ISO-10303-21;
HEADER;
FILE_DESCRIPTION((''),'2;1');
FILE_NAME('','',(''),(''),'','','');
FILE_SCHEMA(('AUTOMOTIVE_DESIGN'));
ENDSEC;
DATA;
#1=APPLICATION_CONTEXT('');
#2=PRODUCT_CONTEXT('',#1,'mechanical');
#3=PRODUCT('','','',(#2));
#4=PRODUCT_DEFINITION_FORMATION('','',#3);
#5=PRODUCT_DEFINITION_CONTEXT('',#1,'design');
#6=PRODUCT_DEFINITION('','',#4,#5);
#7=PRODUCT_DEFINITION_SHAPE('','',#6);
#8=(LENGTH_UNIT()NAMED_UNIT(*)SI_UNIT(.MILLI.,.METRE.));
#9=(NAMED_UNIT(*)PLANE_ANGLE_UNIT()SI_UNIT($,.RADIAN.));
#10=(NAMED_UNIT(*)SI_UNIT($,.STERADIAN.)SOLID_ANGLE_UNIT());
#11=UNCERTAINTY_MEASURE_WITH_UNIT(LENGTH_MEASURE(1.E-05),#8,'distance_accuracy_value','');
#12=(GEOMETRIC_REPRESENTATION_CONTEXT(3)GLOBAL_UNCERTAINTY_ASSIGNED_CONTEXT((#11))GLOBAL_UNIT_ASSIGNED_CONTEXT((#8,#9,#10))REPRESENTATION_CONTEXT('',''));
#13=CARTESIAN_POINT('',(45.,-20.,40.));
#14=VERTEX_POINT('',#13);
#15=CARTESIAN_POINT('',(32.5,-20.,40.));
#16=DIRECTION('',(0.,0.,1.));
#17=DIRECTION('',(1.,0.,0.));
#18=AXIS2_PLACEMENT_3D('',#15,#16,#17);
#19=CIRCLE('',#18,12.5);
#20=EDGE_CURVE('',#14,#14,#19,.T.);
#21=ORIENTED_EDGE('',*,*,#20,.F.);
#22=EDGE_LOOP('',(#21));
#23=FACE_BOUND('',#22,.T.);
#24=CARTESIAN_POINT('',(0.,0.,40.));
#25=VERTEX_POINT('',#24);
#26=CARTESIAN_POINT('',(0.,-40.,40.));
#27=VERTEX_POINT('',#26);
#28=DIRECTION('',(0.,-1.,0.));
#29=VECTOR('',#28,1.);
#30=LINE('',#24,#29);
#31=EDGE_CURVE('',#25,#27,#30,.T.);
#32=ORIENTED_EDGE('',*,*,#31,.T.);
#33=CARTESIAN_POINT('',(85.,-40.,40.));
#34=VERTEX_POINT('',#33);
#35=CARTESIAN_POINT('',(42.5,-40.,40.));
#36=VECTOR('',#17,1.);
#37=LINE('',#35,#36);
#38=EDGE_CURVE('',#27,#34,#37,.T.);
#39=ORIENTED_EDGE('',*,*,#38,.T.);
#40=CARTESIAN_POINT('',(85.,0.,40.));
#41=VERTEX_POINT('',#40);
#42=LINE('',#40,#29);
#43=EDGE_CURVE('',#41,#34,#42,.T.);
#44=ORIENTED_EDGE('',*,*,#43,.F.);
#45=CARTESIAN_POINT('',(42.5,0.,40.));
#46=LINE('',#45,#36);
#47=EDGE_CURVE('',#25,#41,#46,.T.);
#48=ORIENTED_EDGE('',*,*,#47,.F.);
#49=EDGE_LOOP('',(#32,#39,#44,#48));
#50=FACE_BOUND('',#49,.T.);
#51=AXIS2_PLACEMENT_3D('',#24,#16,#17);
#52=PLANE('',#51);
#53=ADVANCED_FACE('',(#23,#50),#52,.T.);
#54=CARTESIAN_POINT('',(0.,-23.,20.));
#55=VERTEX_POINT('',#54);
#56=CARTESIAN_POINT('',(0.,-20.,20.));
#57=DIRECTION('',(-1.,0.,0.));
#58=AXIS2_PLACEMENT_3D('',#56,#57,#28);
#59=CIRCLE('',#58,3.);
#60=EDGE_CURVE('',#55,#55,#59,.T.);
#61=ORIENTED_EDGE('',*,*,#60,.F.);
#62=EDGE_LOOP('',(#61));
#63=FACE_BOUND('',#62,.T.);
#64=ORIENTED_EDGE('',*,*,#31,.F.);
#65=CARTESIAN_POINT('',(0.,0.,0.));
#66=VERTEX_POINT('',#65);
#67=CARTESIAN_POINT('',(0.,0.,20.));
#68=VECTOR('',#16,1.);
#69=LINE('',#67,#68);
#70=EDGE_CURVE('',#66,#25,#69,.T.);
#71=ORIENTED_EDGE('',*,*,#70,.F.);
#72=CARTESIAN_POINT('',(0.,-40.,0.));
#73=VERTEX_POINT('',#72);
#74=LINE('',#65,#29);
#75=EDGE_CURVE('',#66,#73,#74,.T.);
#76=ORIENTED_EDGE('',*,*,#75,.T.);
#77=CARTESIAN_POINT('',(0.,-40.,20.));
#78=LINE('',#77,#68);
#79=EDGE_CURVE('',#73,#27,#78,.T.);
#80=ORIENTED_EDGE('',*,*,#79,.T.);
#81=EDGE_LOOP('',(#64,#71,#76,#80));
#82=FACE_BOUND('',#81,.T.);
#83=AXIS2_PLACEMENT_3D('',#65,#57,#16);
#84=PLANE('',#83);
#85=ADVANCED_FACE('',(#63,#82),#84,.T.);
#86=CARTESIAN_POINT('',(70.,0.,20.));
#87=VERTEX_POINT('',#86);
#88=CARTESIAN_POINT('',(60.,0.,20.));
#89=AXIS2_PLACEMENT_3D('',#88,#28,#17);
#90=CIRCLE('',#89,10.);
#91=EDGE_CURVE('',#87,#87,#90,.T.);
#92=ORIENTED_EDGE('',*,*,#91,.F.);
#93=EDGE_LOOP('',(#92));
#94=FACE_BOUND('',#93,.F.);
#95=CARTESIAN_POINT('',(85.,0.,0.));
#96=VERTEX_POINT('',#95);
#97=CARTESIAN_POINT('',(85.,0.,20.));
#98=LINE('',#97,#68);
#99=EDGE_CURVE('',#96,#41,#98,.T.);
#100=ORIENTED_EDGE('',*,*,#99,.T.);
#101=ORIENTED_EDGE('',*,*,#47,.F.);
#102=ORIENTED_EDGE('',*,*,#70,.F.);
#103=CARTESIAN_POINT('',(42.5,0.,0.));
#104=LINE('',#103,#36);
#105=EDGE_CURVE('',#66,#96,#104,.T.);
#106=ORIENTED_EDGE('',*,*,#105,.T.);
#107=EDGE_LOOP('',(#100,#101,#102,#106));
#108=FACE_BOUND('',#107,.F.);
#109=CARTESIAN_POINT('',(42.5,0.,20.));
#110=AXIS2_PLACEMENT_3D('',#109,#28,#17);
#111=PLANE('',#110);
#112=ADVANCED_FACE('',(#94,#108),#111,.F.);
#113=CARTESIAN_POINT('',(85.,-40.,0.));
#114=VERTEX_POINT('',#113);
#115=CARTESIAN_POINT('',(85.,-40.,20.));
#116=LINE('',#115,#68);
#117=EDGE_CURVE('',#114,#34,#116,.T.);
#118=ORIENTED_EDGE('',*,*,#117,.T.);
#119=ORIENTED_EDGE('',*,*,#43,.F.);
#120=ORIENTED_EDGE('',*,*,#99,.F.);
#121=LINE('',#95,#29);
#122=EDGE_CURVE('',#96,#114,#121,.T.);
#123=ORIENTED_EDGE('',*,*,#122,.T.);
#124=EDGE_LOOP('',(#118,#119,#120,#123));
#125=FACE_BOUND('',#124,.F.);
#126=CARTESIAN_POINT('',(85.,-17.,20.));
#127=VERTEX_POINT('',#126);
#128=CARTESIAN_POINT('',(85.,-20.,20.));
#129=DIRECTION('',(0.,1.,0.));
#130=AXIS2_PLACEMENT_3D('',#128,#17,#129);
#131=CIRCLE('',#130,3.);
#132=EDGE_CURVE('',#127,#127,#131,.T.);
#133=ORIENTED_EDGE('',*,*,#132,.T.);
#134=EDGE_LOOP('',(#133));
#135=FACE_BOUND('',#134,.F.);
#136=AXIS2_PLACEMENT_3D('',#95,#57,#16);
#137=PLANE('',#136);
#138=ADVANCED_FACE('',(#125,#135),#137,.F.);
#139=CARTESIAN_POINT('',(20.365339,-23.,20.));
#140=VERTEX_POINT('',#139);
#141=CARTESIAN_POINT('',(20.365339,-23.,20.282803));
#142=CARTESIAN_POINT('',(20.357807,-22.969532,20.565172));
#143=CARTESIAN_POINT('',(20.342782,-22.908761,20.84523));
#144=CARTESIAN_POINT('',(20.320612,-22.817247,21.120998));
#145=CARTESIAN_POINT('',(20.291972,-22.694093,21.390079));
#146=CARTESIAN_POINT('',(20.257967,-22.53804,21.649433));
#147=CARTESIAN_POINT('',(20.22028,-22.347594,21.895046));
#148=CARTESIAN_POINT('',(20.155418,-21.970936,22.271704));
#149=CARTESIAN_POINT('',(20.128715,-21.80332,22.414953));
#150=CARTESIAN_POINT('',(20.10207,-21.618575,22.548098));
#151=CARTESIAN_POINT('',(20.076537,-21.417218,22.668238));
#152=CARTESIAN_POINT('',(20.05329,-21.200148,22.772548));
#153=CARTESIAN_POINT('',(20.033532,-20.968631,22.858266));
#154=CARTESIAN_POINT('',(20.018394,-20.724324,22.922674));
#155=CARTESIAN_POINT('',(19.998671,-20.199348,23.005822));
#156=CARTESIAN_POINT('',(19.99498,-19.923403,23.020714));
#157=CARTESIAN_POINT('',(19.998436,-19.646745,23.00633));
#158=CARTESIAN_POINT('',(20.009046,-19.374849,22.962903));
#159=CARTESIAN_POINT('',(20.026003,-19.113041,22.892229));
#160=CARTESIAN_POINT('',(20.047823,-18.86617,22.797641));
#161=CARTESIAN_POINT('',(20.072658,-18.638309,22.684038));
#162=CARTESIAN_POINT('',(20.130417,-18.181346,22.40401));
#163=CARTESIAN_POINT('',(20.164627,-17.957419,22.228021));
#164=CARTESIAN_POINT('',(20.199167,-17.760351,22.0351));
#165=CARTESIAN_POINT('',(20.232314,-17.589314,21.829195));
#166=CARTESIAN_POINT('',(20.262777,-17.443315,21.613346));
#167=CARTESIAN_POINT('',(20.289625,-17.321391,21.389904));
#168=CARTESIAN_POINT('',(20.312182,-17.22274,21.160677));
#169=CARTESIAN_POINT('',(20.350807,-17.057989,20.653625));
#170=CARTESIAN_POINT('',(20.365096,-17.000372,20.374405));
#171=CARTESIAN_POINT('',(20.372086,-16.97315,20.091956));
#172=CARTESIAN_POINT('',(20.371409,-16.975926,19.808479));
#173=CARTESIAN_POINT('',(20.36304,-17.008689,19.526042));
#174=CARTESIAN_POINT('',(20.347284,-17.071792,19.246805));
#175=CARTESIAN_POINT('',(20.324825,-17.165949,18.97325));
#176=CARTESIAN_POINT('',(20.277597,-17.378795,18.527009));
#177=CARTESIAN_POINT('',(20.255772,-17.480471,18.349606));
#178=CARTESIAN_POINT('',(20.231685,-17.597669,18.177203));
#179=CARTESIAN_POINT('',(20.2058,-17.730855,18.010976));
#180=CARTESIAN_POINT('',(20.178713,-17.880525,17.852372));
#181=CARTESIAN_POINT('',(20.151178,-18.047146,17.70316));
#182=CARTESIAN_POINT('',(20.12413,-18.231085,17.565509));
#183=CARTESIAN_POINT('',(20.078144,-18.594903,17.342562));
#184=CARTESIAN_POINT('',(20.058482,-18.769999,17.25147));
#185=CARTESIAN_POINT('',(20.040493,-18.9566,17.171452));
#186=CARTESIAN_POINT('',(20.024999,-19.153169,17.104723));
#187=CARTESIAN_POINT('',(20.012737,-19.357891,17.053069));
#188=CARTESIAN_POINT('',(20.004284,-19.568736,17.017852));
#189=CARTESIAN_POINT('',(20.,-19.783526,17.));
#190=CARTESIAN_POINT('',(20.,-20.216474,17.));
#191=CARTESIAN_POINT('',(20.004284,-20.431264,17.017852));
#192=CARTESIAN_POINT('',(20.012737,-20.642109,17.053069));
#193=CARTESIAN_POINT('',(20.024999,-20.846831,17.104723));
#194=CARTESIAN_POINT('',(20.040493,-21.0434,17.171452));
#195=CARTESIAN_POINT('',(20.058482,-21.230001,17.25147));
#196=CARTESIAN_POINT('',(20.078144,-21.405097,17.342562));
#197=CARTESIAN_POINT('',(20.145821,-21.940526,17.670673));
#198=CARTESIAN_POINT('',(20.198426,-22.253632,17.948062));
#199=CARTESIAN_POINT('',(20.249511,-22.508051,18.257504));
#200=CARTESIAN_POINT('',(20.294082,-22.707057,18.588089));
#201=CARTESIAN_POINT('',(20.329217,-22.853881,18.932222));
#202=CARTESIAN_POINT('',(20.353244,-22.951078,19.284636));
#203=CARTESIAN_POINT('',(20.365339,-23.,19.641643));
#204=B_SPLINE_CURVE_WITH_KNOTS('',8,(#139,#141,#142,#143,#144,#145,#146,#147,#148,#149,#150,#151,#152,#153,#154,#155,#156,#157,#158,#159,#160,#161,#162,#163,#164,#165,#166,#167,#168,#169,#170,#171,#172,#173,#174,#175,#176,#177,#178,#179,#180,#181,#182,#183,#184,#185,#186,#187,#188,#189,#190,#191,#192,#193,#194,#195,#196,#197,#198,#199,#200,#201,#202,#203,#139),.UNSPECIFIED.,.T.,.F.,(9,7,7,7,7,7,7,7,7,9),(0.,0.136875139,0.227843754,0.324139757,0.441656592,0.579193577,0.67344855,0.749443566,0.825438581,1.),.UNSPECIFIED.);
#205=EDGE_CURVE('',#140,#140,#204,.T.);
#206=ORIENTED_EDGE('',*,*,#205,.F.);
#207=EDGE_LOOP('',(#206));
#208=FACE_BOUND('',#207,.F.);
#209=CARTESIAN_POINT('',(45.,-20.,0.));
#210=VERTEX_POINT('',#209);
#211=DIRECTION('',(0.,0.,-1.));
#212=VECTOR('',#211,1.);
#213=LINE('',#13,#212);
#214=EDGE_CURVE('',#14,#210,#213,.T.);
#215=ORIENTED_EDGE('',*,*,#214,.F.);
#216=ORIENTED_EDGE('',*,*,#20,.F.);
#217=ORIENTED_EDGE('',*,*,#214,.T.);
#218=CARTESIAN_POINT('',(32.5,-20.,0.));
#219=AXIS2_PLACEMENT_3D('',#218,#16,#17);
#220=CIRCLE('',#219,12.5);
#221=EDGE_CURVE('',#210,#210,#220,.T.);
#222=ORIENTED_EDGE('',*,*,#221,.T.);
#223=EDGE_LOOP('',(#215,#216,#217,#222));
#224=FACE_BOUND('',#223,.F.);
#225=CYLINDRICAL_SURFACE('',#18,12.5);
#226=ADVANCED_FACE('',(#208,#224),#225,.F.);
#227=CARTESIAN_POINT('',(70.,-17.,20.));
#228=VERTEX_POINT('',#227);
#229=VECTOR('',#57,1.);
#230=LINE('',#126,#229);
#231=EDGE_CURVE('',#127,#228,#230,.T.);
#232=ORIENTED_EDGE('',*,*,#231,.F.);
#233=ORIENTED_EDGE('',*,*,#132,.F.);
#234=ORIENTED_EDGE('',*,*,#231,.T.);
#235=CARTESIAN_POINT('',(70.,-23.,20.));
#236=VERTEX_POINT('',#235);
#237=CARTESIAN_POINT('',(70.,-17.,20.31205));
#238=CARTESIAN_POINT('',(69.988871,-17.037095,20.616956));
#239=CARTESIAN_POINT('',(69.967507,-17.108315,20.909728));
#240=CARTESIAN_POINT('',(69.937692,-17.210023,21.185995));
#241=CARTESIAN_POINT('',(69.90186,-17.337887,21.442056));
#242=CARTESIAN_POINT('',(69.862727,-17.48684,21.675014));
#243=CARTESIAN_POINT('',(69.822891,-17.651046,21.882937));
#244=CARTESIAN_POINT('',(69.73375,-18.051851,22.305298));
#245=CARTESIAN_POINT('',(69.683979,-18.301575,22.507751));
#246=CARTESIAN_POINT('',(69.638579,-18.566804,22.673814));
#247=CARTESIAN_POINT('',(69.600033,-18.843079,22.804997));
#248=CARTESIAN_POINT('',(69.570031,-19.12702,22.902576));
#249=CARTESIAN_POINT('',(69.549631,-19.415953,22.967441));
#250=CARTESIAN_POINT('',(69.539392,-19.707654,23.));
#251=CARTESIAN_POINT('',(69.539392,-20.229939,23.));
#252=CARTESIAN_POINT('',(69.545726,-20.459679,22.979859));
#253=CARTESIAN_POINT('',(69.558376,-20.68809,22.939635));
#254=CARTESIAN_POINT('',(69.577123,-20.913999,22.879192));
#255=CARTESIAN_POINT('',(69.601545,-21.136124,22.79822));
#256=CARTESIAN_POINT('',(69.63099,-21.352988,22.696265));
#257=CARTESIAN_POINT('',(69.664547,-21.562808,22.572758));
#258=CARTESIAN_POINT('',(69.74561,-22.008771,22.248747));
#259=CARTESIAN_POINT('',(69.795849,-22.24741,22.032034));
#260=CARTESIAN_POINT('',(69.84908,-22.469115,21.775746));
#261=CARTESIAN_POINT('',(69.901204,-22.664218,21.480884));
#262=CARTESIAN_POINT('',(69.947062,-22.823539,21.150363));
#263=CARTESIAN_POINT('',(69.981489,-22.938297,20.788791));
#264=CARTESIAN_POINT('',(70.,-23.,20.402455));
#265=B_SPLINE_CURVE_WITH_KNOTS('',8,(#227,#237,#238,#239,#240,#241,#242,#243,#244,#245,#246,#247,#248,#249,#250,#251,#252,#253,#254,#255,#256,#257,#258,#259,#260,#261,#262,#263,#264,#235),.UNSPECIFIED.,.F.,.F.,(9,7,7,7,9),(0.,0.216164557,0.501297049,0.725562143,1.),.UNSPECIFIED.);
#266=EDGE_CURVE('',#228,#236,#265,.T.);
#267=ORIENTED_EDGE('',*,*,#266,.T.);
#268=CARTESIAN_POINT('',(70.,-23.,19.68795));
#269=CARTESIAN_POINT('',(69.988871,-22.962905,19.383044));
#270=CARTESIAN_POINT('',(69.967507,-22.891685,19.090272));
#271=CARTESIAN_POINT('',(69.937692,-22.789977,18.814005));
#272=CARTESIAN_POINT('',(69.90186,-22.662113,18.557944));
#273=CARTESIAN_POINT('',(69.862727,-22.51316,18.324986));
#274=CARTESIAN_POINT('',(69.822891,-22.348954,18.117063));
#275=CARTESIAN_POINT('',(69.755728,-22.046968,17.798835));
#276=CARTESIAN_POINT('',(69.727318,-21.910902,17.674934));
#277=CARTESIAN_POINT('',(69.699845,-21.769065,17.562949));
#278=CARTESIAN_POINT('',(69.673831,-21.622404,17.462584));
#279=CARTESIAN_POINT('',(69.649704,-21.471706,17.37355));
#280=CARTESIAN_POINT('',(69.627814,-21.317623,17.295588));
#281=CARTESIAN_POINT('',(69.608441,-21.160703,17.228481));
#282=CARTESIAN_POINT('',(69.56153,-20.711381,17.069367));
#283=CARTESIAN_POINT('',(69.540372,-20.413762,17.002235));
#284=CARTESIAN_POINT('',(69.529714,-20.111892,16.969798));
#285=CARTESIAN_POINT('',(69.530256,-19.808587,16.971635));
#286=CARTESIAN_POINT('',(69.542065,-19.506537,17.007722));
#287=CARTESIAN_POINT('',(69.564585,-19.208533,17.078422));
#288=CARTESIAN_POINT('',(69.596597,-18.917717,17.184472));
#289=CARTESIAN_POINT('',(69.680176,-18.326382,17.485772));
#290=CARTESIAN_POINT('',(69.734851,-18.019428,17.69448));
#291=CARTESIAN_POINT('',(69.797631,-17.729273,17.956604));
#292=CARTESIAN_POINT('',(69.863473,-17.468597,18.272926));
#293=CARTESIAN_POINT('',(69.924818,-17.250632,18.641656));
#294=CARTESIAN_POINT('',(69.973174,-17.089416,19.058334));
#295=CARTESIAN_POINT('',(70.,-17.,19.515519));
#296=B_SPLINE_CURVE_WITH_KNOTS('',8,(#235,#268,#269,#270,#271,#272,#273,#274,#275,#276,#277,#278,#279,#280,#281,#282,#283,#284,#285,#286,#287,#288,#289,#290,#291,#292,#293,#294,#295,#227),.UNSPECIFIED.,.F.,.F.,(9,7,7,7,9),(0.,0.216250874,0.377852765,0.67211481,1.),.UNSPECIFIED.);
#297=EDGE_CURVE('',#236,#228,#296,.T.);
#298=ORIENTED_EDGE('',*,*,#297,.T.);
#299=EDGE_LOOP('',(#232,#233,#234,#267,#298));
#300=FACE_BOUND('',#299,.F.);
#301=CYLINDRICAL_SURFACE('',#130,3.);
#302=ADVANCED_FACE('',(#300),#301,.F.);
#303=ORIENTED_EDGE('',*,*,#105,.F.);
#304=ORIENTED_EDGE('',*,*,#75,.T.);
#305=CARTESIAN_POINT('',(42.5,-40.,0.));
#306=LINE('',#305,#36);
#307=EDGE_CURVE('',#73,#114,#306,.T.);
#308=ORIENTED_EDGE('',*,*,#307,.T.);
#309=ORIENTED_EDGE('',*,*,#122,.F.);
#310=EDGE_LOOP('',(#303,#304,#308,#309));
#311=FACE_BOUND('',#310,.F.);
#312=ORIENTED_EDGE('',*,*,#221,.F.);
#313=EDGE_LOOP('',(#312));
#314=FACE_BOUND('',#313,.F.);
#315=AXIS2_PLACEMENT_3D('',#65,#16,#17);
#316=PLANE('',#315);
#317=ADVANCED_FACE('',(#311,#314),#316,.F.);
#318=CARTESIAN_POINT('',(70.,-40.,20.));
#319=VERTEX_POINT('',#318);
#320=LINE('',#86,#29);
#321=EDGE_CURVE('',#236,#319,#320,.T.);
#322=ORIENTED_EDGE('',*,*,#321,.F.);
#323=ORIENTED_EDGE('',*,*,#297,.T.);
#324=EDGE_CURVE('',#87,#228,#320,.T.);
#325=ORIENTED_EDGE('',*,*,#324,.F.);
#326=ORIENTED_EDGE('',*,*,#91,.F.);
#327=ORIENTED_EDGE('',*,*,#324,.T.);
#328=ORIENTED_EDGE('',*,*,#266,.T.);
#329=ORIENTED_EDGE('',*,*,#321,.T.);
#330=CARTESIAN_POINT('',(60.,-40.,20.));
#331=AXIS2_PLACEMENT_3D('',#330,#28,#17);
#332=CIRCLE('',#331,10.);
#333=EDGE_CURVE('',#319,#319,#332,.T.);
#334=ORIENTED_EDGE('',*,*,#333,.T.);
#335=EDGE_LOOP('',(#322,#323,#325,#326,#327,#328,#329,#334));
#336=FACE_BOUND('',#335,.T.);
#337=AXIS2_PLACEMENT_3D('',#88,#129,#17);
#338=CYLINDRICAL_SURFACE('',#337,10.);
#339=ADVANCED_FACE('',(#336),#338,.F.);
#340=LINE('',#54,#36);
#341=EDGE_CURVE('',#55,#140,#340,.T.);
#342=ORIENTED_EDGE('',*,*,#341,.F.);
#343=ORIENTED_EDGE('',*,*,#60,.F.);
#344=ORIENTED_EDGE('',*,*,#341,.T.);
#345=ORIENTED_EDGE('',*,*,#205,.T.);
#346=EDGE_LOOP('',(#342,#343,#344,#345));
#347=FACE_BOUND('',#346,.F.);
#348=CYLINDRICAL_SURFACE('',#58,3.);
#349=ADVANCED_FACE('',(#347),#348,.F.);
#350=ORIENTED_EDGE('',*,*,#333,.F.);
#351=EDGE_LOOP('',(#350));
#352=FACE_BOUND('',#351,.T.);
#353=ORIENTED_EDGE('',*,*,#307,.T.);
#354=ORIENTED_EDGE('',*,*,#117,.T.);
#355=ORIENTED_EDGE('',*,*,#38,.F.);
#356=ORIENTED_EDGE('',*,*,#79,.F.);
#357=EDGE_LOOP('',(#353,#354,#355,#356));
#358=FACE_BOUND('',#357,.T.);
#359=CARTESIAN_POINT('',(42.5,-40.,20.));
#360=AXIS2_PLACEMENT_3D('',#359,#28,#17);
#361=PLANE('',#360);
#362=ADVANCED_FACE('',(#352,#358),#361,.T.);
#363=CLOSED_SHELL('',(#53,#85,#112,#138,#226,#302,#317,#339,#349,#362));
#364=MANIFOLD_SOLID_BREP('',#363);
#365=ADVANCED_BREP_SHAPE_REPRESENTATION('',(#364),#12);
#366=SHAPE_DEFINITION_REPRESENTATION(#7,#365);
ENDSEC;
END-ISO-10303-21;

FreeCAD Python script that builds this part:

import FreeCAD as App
import Part
import Sketcher
from FreeCAD import Vector


def add_polygon(sketch, points):
    """Adds a closed chain of lines whose ends are joined by coincident constraints."""
    first, n = sketch.GeometryCount, len(points)
    for a, b in zip(points, points[1:] + points[:1]):
        sketch.addGeometry(Part.LineSegment(App.Vector(*a, 0), App.Vector(*b, 0)), False)
    for i in range(n):
        sketch.addConstraint(Sketcher.Constraint("Coincident", first + i, 2, first + (i + 1) % n, 1))

doc = App.newDocument("Part")
body = doc.addObject("PartDesign::Body", "Body")

sketch1 = doc.addObject("Sketcher::SketchObject", "Sketch")
body.addObject(sketch1)
sketch1.AttachmentSupport = (doc.XZ_Plane, [""])
sketch1.MapMode = "FlatFace"
add_polygon(sketch1, [(0, 40), (0, 0), (85, 0), (85, 40)])
sketch1.addGeometry(Part.Circle(Vector(60, 20, 0), Vector(0, 0, 1), 10), False)
sketch1.addConstraint(Sketcher.Constraint("Vertical", 0))
sketch1.addConstraint(Sketcher.Constraint("Horizontal", 1))
sketch1.addConstraint(Sketcher.Constraint("Vertical", 2))
sketch1.addConstraint(Sketcher.Constraint("Horizontal", 3))
sketch1.addConstraint(Sketcher.Constraint("Coincident", 0, 2, -1, 1))
sketch1.addConstraint(Sketcher.Constraint("Diameter", 4, 20.0))
sketch1.addConstraint(Sketcher.Constraint("DistanceX", 1, 1, 1, 2, 85.0))
sketch1.addConstraint(Sketcher.Constraint("DistanceY", 0, 2, 0, 1, 40.0))
sketch1.addConstraint(Sketcher.Constraint("DistanceX", -1, 1, 4, 3, 60.0))
sketch1.addConstraint(Sketcher.Constraint("DistanceY", -1, 1, 4, 3, 20.0))
pad1 = doc.addObject("PartDesign::Pad", "Pad")
body.addObject(pad1)
pad1.Profile = sketch1
pad1.Length = 40

sketch2 = doc.addObject("Sketcher::SketchObject", "Sketch001")
body.addObject(sketch2)
sketch2.AttachmentSupport = (doc.XY_Plane, [""])
sketch2.MapMode = "FlatFace"
sketch2.AttachmentOffset = App.Placement(Vector(0, 0, 40), App.Rotation())
sketch2.addGeometry(Part.Circle(Vector(32, -20, 0), Vector(0, 0, 1), 12), False)
sketch2.addConstraint(Sketcher.Constraint("Diameter", 0, 25.0))
sketch2.addConstraint(Sketcher.Constraint("DistanceY", 0, 3, -1, 1, 20.0))
sketch2.addConstraint(Sketcher.Constraint("DistanceX", -1, 1, 0, 3, 32.5))
pocket1 = doc.addObject("PartDesign::Pocket", "Pocket")
body.addObject(pocket1)
pocket1.Profile = sketch2
pocket1.Type = "ThroughAll"

sketch3 = doc.addObject("Sketcher::SketchObject", "Sketch002")
body.addObject(sketch3)
sketch3.AttachmentSupport = (doc.YZ_Plane, [""])
sketch3.MapMode = "FlatFace"
sketch3.AttachmentOffset = App.Placement(Vector(0, 0, 85), App.Rotation())
sketch3.addGeometry(Part.Circle(Vector(-20, 20, 0), Vector(0, 0, 1), 3), False)
sketch3.addConstraint(Sketcher.Constraint("Diameter", 0, 6.0))
sketch3.addConstraint(Sketcher.Constraint("DistanceX", 0, 3, -1, 1, 20.0))
sketch3.addConstraint(Sketcher.Constraint("DistanceY", -1, 1, 0, 3, 20.0))
pocket2 = doc.addObject("PartDesign::Pocket", "Pocket001")
body.addObject(pocket2)
pocket2.Profile = sketch3
pocket2.Length = 25

sketch4 = doc.addObject("Sketcher::SketchObject", "Sketch003")
body.addObject(sketch4)
sketch4.AttachmentSupport = (doc.YZ_Plane, [""])
sketch4.MapMode = "FlatFace"
sketch4.addGeometry(Part.Circle(Vector(-20, 20, 0), Vector(0, 0, 1), 3), False)
sketch4.addConstraint(Sketcher.Constraint("Diameter", 0, 6.0))
sketch4.addConstraint(Sketcher.Constraint("DistanceX", 0, 3, -1, 1, 20.0))
sketch4.addConstraint(Sketcher.Constraint("DistanceY", -1, 1, 0, 3, 20.0))
pocket3 = doc.addObject("PartDesign::Pocket", "Pocket002")
body.addObject(pocket3)
pocket3.Profile = sketch4
pocket3.Length = 25
pocket3.Reversed = True

doc.recompute()
